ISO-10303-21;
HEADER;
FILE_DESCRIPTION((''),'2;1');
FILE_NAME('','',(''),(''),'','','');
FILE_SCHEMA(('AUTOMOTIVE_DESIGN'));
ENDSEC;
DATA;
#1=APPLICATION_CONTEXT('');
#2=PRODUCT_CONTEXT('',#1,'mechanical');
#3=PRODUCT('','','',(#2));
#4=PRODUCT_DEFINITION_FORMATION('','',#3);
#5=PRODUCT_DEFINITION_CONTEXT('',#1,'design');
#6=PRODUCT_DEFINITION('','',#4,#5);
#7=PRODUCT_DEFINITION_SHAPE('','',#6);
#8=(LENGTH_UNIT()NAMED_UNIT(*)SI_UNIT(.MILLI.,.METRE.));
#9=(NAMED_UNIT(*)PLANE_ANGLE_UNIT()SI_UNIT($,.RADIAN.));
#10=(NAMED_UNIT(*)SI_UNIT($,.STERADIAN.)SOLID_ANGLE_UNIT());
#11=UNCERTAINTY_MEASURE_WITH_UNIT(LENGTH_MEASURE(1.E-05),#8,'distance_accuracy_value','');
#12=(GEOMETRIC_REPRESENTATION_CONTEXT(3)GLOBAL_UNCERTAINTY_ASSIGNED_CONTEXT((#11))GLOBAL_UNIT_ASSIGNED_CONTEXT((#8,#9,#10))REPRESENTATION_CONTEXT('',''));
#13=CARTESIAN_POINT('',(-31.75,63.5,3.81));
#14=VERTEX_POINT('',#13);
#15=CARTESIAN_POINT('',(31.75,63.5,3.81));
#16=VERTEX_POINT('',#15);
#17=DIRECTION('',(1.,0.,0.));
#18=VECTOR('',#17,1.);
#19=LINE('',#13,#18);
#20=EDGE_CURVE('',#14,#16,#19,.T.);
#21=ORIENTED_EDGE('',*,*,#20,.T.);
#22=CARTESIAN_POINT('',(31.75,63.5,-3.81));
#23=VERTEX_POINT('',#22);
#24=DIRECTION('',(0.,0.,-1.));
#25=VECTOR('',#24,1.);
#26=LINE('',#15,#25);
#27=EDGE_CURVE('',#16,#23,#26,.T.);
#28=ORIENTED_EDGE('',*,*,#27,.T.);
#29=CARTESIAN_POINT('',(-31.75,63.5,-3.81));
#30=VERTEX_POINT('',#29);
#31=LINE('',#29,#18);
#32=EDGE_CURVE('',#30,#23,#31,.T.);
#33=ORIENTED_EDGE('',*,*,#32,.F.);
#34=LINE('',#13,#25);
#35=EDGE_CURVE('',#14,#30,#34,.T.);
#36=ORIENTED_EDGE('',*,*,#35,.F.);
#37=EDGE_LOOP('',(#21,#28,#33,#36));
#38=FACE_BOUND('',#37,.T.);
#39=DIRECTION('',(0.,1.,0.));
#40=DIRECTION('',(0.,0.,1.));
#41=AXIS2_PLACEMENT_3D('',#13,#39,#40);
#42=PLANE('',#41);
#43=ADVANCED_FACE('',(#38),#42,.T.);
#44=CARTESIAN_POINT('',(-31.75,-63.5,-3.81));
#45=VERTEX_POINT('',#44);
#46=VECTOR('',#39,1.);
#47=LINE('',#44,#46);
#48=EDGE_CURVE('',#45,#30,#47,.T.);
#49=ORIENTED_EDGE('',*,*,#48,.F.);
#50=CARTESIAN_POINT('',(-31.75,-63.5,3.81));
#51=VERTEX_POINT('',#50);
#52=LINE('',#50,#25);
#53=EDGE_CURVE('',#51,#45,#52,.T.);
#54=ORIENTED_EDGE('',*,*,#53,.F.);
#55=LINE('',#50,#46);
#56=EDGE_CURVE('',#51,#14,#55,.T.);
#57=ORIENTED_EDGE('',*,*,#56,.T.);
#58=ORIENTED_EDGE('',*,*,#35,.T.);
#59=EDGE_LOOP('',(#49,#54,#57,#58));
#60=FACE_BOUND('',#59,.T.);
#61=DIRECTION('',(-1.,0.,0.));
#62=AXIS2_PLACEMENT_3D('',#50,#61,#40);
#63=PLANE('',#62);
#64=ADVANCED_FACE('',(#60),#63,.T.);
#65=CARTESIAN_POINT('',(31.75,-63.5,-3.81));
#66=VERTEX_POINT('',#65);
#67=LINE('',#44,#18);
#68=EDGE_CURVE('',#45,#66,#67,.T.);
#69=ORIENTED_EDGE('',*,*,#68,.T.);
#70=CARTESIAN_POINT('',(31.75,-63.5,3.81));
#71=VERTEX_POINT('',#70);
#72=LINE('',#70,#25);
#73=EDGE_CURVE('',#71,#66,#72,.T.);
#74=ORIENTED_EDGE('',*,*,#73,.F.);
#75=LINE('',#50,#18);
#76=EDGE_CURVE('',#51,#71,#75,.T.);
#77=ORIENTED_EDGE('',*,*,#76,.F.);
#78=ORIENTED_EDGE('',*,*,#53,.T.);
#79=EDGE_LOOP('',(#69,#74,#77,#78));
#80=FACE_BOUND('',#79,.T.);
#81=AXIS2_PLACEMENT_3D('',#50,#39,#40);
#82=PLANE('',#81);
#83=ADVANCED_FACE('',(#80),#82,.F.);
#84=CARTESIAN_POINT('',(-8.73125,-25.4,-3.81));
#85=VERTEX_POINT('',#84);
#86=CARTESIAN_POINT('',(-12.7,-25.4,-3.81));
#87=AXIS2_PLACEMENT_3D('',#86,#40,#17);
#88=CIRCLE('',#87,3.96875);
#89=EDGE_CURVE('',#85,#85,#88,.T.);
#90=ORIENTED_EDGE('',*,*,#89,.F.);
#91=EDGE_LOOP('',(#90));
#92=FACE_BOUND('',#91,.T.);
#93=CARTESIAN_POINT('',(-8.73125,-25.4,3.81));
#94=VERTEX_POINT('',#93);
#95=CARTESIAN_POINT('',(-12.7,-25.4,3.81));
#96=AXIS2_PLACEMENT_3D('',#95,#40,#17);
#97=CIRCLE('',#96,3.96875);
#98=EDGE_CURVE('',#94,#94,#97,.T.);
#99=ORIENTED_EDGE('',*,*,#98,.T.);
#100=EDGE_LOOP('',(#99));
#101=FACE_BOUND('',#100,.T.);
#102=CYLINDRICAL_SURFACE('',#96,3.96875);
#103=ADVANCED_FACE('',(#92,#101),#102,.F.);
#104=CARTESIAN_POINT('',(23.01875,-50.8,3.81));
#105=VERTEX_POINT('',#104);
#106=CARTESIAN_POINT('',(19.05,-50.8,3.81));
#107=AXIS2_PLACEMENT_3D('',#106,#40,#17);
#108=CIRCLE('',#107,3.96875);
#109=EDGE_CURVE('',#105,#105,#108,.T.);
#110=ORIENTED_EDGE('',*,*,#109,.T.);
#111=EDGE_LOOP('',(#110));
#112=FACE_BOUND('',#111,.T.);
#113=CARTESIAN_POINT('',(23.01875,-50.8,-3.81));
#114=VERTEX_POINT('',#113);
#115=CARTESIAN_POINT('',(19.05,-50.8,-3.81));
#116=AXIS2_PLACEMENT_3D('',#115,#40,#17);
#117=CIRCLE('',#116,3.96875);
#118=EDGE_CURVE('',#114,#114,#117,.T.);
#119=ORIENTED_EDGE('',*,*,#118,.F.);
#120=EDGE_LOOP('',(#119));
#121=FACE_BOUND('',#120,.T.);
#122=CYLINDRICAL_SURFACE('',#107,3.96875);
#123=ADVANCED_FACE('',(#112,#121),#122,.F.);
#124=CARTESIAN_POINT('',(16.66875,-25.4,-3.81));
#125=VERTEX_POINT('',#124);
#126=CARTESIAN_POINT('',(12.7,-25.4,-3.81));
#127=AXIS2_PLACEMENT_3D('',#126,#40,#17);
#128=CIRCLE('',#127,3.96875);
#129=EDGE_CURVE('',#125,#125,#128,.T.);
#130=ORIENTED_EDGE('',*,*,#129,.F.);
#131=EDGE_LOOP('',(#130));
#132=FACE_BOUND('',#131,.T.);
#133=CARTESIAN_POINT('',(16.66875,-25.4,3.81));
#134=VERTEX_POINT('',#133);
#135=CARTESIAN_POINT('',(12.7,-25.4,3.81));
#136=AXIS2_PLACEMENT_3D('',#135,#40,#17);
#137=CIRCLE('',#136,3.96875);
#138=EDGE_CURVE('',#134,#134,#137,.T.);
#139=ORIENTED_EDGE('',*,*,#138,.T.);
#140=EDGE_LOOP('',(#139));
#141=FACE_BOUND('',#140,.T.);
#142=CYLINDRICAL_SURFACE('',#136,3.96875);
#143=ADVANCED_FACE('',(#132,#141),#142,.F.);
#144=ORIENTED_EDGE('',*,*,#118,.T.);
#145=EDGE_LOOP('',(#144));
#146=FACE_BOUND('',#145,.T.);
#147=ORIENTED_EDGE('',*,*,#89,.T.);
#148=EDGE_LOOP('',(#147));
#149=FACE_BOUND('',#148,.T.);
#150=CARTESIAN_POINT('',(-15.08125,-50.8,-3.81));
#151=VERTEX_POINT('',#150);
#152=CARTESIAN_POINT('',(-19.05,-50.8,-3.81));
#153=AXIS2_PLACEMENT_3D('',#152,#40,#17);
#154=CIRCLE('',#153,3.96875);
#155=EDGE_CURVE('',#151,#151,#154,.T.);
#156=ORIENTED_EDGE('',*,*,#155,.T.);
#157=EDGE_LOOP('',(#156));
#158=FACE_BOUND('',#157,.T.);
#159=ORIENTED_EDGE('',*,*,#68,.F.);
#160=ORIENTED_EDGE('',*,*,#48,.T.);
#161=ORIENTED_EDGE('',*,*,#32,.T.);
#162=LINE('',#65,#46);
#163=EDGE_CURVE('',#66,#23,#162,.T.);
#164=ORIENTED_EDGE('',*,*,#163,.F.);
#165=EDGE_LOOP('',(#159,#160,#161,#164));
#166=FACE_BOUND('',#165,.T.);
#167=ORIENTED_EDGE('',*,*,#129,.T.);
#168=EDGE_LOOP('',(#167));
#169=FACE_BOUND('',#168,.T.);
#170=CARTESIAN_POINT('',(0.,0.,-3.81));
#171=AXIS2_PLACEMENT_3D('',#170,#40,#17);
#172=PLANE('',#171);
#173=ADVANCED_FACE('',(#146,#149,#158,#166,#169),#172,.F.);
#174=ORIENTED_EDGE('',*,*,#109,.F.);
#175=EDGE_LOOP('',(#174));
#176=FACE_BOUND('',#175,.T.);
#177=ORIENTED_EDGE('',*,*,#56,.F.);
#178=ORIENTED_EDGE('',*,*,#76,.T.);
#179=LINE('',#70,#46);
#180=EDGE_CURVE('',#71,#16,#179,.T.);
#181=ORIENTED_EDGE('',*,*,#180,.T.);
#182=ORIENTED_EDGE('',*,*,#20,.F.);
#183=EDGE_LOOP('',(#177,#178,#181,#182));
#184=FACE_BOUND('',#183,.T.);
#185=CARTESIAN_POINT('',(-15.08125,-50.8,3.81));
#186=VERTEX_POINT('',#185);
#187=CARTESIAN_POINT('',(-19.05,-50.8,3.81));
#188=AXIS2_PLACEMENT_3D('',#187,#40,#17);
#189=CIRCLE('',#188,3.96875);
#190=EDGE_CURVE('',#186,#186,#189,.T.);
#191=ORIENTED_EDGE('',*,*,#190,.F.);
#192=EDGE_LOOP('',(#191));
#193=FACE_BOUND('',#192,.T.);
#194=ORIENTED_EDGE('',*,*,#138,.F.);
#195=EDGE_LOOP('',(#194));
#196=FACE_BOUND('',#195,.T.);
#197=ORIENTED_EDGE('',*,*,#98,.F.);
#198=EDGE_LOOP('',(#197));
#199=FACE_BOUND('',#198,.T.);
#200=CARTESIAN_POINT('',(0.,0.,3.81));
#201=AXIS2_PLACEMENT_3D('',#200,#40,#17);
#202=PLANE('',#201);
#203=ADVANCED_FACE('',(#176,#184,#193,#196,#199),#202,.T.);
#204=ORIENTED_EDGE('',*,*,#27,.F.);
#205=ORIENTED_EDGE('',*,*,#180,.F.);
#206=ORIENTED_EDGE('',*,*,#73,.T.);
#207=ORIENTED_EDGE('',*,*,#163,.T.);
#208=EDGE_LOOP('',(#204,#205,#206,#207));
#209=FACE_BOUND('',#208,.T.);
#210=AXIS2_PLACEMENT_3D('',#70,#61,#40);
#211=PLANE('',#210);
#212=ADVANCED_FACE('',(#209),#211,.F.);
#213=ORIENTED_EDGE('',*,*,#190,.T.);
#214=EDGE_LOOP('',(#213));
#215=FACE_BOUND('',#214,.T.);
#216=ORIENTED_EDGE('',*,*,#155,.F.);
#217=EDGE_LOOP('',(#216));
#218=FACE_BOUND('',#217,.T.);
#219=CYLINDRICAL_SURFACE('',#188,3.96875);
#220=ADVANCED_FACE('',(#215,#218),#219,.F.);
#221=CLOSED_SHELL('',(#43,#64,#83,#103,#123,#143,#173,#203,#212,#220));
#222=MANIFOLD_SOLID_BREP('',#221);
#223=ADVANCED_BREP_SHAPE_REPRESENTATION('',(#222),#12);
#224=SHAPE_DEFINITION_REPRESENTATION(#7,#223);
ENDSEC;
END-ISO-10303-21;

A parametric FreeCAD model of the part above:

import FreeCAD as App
import Part
import Sketcher
Q = App.Units.Quantity

doc = App.newDocument("Part")
body = doc.addObject("PartDesign::Body", "Body")

# Sketch on XY plane
sketch1 = body.newObject("Sketcher::SketchObject", "Sketch")
sketch1.AttachmentSupport = (doc.getObject("XY_Plane"), [""])
sketch1.MapMode = "FlatFace"
sketch1.addGeometry([
    Part.LineSegment(App.Vector(-31.75, 63.5, 0), App.Vector(-31.75, -63.5, 0)),
    Part.LineSegment(App.Vector(-31.75, -63.5, 0), App.Vector(31.75, -63.5, 0)),
    Part.LineSegment(App.Vector(31.75, -63.5, 0), App.Vector(31.75, 63.5, 0)),
    Part.LineSegment(App.Vector(31.75, 63.5, 0), App.Vector(-31.75, 63.5, 0)),
], False)
sketch1.addConstraint([
    Sketcher.Constraint("Coincident", 0, 2, 1, 1),
    Sketcher.Constraint("Coincident", 1, 2, 2, 1),
    Sketcher.Constraint("Coincident", 2, 2, 3, 1),
    Sketcher.Constraint("Coincident", 3, 2, 0, 1),
    Sketcher.Constraint("Vertical", 0),
    Sketcher.Constraint("Horizontal", 1),
    Sketcher.Constraint("Vertical", 2),
    Sketcher.Constraint("Horizontal", 3),
    Sketcher.Constraint("Symmetric", 0, 2, 2, 2, -1, 1),
    Sketcher.Constraint("DistanceY", 0, 2, 0, 1, Q("5 in")),
    Sketcher.Constraint("DistanceX", 1, 1, 1, 2, Q("2.5 in")),
])
pad1 = body.newObject("PartDesign::Pad", "Pad")
pad1.Profile = sketch1
pad1.Length = Q("0.3 in")
pad1.Midplane = True

# Sketch on XY plane
sketch2 = body.newObject("Sketcher::SketchObject", "Sketch001")
sketch2.AttachmentSupport = (doc.getObject("XY_Plane"), [""])
sketch2.MapMode = "FlatFace"
sketch2.AttachmentOffset = App.Placement(App.Vector(0, 0, 0.15 * 25.4), App.Rotation())
sketch2.addGeometry([
    Part.Circle(App.Vector(-12.7, -25.4, 0), App.Vector(0, 0, 1), 3.96875),
    Part.Circle(App.Vector(12.7, -25.4, 0), App.Vector(0, 0, 1), 3.96875),
    Part.Circle(App.Vector(-19.05, -50.8, 0), App.Vector(0, 0, 1), 3.96875),
    Part.Circle(App.Vector(19.05, -50.8, 0), App.Vector(0, 0, 1), 3.96875),
], False)
sketch2.addConstraint([
    Sketcher.Constraint("Equal", 0, 1),
    Sketcher.Constraint("Equal", 1, 2),
    Sketcher.Constraint("Equal", 2, 3),
    Sketcher.Constraint("Symmetric", 0, 3, 1, 3, -2),
    Sketcher.Constraint("Symmetric", 2, 3, 3, 3, -2),
    Sketcher.Constraint("Diameter", 0, Q("0.3125 in")),
    Sketcher.Constraint("DistanceY", 0, 3, -1, 1, Q("1 in")),
    Sketcher.Constraint("DistanceY", 2, 3, -1, 1, Q("2 in")),
    Sketcher.Constraint("DistanceX", 0, 3, 1, 3, Q("1 in")),
    Sketcher.Constraint("DistanceX", 2, 3, 3, 3, Q("1.5 in")),
])
doc.recompute()
hole = body.newObject("PartDesign::Hole", "Hole")
hole.Profile = sketch2
hole.ThreadType = "None"
hole.Diameter = Q("0.3125 in")
hole.DepthType = "ThroughAll"

doc.recompute()
